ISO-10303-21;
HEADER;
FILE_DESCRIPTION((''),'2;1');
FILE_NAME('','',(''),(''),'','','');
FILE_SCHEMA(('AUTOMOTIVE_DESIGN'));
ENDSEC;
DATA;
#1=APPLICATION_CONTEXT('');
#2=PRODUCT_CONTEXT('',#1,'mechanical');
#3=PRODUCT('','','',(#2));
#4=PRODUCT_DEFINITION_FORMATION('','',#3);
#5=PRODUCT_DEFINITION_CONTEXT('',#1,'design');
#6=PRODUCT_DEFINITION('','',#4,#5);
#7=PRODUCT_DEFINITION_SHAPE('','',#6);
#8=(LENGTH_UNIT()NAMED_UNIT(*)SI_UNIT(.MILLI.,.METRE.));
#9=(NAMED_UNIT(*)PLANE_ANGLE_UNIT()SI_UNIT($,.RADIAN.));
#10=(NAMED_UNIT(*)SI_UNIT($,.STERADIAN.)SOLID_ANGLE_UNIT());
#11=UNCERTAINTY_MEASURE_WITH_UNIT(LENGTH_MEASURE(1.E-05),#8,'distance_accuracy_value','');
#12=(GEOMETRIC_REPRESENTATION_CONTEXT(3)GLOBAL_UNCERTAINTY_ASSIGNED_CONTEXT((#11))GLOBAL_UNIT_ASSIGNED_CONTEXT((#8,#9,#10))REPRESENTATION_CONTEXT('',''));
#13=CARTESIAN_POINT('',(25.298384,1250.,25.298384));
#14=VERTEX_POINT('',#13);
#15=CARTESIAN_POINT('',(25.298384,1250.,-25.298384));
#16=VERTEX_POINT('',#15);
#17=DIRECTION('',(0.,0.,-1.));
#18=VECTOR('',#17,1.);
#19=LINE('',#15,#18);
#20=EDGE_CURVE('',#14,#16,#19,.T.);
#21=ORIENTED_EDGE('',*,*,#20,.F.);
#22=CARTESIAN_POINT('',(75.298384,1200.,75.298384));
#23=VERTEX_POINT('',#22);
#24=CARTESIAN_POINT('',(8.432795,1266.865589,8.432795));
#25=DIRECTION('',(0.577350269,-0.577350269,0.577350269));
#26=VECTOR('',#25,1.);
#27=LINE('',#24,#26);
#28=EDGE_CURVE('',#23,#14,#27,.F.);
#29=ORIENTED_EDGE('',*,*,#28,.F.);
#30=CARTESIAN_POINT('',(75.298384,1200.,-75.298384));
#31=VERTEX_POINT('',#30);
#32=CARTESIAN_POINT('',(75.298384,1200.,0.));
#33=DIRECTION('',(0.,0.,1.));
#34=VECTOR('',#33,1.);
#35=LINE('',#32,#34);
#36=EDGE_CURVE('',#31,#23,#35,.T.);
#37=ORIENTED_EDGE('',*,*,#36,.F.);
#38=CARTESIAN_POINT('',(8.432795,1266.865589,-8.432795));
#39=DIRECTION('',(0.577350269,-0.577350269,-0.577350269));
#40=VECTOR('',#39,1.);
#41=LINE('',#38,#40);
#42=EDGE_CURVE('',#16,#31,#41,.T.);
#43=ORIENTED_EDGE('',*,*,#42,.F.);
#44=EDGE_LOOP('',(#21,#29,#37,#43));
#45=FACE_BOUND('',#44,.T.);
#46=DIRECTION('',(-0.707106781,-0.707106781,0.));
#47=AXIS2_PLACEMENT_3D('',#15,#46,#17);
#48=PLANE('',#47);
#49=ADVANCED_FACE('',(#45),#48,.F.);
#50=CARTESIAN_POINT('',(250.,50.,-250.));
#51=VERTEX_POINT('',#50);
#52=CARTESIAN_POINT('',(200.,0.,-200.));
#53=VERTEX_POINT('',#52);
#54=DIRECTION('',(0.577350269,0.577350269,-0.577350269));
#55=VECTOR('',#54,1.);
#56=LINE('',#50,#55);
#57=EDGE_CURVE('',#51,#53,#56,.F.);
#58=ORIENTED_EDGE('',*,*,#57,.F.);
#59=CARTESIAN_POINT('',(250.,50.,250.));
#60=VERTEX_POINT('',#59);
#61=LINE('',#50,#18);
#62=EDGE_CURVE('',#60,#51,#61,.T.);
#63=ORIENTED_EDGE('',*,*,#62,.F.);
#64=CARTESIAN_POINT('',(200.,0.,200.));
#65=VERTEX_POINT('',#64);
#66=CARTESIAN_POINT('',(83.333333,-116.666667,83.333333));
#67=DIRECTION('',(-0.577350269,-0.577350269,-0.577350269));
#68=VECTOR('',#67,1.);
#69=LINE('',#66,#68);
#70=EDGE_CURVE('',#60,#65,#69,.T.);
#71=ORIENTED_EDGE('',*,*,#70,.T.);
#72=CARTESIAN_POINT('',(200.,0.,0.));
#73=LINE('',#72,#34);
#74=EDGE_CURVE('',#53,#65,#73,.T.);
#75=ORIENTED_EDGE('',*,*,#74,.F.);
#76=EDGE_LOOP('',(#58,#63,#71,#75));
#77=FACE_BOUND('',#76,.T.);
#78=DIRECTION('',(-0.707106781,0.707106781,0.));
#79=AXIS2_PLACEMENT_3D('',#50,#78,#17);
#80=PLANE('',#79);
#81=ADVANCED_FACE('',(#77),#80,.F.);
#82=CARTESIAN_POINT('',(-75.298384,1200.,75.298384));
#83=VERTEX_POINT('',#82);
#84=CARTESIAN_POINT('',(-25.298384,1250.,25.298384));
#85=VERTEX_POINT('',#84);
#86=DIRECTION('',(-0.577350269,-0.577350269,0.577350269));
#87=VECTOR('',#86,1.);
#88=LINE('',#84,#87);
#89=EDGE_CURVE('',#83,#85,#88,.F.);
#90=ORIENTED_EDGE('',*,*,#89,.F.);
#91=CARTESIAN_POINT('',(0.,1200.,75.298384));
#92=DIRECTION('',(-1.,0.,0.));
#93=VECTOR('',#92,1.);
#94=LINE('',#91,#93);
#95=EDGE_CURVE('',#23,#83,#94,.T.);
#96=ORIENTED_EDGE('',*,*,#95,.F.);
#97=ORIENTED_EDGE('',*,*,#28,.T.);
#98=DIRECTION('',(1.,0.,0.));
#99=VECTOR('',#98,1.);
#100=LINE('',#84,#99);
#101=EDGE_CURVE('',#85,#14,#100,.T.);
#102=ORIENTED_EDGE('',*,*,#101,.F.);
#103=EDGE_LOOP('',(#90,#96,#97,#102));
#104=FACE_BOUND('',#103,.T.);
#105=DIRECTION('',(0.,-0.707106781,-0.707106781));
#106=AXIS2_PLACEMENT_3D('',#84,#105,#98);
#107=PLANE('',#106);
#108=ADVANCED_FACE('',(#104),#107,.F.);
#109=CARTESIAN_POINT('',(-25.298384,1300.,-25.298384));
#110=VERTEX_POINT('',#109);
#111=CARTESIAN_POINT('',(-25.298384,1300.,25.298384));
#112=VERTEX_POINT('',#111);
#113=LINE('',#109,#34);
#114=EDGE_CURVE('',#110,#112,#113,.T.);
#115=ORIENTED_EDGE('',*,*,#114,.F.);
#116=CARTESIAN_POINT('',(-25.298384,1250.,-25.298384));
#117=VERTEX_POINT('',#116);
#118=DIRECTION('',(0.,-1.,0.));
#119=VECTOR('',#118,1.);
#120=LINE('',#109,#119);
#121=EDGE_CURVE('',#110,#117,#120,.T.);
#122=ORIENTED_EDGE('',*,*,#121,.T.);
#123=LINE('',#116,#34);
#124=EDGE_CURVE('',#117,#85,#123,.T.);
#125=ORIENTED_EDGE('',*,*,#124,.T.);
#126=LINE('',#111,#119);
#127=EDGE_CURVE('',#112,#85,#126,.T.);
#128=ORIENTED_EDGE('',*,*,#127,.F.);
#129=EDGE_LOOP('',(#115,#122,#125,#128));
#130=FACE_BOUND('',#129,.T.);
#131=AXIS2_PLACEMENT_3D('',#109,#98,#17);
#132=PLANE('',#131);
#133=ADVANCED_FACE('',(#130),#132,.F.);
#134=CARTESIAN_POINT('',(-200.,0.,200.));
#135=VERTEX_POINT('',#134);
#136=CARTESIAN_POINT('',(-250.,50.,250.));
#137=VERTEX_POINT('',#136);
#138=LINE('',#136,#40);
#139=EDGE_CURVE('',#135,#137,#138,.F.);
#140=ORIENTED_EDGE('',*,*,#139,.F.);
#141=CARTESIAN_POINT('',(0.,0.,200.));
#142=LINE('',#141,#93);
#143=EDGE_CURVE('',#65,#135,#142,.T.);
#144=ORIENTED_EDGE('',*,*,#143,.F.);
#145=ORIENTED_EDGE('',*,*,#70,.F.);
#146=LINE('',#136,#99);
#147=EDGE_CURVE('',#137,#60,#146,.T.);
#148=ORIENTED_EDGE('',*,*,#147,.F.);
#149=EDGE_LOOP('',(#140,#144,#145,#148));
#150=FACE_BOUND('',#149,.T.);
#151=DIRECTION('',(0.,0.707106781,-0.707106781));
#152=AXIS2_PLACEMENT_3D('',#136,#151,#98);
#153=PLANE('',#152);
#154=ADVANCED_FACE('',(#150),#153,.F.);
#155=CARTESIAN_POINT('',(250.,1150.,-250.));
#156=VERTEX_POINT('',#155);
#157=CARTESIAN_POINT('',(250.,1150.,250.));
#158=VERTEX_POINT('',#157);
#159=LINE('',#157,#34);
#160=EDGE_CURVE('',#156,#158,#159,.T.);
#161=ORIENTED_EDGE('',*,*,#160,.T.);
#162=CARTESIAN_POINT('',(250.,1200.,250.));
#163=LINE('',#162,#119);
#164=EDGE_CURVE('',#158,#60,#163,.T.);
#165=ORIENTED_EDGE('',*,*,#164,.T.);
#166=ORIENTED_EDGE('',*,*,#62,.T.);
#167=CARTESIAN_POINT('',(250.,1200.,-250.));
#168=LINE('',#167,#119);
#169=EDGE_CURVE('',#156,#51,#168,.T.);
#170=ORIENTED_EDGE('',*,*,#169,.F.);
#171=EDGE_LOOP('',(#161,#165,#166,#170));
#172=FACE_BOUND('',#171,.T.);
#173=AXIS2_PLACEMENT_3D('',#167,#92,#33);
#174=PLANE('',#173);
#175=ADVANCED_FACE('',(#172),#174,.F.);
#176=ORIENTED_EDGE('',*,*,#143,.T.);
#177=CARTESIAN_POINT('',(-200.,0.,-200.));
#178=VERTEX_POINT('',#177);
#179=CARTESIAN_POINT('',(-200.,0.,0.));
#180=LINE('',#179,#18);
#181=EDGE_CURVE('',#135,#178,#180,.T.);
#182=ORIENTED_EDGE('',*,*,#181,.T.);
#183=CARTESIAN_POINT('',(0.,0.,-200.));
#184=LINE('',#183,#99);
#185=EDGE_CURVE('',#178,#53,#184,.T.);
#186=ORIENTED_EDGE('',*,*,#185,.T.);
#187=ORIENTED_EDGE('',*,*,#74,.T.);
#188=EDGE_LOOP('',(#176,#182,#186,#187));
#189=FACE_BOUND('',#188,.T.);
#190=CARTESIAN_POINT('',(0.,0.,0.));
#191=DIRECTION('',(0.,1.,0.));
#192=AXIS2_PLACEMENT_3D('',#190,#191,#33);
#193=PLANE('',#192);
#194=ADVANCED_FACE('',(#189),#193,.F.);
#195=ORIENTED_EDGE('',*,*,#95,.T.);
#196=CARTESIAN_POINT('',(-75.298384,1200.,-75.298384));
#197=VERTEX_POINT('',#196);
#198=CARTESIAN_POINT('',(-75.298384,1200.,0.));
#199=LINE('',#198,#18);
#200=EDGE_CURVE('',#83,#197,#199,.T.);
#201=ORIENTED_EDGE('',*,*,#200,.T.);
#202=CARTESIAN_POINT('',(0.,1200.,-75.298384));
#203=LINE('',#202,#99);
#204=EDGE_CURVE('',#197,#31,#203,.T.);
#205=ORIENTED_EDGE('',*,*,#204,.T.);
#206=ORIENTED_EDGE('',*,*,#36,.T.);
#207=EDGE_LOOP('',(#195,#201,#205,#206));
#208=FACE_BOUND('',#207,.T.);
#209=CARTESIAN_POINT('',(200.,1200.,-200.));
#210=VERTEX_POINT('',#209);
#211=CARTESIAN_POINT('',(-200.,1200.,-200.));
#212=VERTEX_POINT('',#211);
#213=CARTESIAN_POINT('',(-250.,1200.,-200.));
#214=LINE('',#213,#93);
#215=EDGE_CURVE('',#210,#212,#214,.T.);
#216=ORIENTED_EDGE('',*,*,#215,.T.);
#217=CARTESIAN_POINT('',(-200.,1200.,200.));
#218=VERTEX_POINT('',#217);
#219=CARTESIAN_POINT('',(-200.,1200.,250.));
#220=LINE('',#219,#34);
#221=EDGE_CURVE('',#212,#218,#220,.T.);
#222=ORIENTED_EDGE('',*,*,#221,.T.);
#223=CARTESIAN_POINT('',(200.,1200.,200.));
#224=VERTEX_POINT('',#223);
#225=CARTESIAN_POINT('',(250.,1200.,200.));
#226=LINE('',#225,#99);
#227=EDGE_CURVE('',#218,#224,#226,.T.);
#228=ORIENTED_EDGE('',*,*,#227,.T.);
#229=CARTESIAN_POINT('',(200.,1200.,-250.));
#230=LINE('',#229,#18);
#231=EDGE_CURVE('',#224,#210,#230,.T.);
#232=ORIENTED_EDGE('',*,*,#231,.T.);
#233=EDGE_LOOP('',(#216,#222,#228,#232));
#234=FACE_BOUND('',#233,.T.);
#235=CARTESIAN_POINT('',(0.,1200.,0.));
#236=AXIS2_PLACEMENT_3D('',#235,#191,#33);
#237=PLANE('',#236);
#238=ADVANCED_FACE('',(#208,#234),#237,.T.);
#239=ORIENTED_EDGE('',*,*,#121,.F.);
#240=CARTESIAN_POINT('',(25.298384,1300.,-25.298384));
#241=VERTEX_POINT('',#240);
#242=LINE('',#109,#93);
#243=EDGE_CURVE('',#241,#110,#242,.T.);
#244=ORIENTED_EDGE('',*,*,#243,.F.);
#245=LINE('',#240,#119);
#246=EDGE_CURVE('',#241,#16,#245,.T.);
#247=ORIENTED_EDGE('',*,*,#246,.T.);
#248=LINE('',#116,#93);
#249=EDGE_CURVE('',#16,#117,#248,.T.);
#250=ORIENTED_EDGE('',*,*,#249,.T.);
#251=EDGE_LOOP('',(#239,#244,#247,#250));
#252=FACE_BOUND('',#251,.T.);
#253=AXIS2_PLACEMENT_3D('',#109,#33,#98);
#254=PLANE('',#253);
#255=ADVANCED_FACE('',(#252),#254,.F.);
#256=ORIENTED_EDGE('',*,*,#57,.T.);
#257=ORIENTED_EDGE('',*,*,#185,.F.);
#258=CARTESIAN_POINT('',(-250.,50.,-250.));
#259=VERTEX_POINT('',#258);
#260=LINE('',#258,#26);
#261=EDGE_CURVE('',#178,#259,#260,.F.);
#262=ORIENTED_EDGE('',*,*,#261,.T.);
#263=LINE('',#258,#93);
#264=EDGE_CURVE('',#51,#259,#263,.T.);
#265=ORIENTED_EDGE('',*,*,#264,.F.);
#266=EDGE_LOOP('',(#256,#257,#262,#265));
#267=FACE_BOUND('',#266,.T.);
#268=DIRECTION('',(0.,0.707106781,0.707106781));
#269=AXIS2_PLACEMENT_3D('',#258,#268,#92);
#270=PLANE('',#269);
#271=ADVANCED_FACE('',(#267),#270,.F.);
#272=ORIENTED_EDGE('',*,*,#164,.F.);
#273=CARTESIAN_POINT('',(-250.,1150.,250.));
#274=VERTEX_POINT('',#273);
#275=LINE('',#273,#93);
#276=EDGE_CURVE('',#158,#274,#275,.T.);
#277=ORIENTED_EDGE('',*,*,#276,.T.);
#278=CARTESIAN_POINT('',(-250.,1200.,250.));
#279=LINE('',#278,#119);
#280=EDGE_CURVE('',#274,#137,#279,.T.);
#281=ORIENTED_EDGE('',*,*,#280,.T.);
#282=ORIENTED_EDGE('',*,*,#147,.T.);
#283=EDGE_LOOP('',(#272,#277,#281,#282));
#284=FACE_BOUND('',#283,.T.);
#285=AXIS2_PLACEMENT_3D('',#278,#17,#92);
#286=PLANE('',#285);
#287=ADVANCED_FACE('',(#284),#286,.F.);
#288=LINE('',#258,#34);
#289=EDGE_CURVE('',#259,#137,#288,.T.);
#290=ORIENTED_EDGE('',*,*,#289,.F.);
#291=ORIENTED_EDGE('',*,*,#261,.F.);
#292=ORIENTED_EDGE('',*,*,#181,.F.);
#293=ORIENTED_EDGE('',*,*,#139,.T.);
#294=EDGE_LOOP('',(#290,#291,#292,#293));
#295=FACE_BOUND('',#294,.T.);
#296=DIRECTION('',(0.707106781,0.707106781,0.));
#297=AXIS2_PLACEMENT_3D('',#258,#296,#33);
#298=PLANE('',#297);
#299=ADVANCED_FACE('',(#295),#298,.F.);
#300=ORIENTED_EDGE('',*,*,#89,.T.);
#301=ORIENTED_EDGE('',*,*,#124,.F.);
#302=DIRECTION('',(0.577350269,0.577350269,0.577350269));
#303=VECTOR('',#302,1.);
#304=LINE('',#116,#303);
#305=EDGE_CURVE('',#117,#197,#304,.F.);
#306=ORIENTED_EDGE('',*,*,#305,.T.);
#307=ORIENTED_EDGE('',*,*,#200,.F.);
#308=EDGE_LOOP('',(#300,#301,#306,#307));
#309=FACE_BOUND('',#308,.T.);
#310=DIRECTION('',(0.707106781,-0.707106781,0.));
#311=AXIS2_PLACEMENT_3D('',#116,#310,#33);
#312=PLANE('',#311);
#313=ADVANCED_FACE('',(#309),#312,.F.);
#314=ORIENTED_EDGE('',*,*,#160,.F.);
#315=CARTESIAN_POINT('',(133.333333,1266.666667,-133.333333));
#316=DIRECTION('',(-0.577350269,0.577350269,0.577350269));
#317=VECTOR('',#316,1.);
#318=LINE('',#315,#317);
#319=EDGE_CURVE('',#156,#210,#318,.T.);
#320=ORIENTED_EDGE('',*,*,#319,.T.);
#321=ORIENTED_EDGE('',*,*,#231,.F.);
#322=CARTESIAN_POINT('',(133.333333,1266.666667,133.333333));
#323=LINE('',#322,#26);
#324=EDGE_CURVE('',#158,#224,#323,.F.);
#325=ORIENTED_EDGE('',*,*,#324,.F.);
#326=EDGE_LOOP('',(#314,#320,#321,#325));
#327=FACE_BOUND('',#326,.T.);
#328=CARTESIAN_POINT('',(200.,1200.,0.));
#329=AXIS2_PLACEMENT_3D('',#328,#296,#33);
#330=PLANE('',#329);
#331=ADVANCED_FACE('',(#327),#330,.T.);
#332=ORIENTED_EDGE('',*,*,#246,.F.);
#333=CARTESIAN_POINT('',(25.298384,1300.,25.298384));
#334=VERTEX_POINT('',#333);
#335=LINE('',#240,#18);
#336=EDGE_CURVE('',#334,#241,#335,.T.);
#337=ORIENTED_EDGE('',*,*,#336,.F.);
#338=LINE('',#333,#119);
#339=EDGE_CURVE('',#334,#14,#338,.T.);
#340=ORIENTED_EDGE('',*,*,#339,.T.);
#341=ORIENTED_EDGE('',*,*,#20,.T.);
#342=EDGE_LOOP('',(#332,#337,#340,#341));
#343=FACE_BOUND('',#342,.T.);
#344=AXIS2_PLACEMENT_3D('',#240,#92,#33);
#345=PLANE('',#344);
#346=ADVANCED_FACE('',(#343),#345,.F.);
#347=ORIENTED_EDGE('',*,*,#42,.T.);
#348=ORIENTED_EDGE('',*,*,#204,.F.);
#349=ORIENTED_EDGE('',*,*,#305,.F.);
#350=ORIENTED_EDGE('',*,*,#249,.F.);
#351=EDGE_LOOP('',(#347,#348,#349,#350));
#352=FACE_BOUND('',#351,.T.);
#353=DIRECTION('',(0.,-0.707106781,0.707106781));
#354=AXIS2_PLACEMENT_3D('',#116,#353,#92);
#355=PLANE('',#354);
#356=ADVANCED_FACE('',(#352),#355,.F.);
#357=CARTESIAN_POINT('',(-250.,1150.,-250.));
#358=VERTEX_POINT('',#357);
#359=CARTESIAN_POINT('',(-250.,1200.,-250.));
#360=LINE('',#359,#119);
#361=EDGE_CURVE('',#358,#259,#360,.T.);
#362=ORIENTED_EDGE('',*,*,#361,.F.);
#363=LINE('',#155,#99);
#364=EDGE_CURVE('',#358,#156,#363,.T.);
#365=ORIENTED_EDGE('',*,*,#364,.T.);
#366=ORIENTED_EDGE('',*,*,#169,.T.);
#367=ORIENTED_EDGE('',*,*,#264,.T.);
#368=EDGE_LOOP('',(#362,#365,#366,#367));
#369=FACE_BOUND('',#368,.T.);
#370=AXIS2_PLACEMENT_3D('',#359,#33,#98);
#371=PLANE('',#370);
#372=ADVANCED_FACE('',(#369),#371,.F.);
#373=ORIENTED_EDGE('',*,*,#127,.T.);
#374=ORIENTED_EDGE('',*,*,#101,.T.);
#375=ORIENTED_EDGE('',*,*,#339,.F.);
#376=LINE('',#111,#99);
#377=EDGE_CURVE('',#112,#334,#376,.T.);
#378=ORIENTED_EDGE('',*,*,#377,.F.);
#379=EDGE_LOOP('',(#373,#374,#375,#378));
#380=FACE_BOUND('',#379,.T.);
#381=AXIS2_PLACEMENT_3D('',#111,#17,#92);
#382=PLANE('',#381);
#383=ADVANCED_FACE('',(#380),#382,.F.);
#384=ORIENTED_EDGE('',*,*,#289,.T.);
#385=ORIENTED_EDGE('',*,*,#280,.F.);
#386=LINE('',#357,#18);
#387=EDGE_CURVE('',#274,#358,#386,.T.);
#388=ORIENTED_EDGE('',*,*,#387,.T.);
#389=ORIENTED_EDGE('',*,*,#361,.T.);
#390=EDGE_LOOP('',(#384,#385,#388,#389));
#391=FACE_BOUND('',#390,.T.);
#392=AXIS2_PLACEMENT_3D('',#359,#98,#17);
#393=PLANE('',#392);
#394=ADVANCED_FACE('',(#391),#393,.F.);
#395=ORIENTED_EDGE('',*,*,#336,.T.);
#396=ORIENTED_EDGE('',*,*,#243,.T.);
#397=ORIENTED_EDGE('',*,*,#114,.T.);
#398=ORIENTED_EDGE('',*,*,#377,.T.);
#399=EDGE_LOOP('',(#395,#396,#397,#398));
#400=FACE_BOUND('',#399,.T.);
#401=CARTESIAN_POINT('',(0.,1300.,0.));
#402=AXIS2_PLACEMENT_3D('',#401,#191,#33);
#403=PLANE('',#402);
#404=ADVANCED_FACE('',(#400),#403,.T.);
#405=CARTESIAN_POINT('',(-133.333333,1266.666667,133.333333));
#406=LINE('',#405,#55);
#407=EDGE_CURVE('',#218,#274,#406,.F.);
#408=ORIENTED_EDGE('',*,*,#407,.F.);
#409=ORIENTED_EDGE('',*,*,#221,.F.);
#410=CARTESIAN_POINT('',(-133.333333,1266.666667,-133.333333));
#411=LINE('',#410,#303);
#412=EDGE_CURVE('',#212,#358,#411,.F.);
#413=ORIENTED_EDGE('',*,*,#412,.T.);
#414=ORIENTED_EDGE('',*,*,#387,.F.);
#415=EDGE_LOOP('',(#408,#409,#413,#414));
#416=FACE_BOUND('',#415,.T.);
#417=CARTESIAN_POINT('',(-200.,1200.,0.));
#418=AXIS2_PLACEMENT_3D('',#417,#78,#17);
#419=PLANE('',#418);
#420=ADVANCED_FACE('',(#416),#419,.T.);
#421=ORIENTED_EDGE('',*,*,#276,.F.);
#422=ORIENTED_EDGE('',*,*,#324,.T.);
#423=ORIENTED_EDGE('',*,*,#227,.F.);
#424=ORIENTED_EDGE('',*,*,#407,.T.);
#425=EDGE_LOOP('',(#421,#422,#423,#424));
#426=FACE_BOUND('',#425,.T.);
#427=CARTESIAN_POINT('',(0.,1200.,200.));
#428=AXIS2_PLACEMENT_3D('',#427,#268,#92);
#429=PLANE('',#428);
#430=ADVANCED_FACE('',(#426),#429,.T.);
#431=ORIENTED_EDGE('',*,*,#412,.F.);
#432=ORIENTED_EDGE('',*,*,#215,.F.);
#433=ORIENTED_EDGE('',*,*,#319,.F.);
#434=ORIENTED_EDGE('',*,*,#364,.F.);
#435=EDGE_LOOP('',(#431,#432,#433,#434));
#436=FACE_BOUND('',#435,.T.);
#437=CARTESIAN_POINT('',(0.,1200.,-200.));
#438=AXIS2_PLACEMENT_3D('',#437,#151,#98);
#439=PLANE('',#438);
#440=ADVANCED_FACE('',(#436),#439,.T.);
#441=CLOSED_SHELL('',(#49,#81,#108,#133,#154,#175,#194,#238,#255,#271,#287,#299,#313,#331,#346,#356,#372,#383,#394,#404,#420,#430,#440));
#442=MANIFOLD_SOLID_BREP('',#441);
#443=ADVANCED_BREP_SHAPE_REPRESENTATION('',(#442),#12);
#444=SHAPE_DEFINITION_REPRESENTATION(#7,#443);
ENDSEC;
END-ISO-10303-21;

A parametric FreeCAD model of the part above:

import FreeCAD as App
import Part
import Sketcher
Q = App.Units.Quantity


def edges_at(feature, points):
    """Names of the edges that pass closest to the given points."""
    edges = feature.Shape.Edges
    near = lambda p: min(range(len(edges)), key=lambda i: edges[i].distToShape(Part.Vertex(*p))[0])
    return sorted({f"Edge{near(p) + 1}" for p in points})

doc = App.newDocument("Part")
params = doc.addObject("Spreadsheet::Sheet", "Params")
for row, (alias, value) in enumerate([
    ("sketch1_width", "500 mm"),
    ("pad1_length", "1200 mm"),
    ("pad2_length", "100 mm"),
    ("chamfer_size", "50 mm"),
], start=1):
    params.set(f"A{row}", alias)
    params.set(f"B{row}", "=" + value)
    params.setAlias(f"B{row}", alias)

body = doc.addObject("PartDesign::Body", "Body")

sketch1 = body.newObject("Sketcher::SketchObject", "Sketch")
sketch1.AttachmentSupport = (doc.getObject("XZ_Plane"), [""])
sketch1.MapMode = "FlatFace"
sketch1.addGeometry([
    Part.LineSegment(App.Vector(-250, -250, 0), App.Vector(-250, 250, 0)),
    Part.LineSegment(App.Vector(-250, 250, 0), App.Vector(250, 250, 0)),
    Part.LineSegment(App.Vector(250, 250, 0), App.Vector(250, -250, 0)),
    Part.LineSegment(App.Vector(250, -250, 0), App.Vector(-250, -250, 0)),
], False)
sketch1.addConstraint([
    Sketcher.Constraint("Coincident", 0, 2, 1, 1),
    Sketcher.Constraint("Coincident", 1, 2, 2, 1),
    Sketcher.Constraint("Coincident", 2, 2, 3, 1),
    Sketcher.Constraint("Coincident", 3, 2, 0, 1),
    Sketcher.Constraint("Vertical", 0),
    Sketcher.Constraint("Horizontal", 1),
    Sketcher.Constraint("Vertical", 2),
    Sketcher.Constraint("Horizontal", 3),
    Sketcher.Constraint("Symmetric", 0, 2, 2, 2, -1, 1),
    Sketcher.Constraint("Equal", 3, 0),
    Sketcher.Constraint("DistanceX", 1, 1, 1, 2, Q("500 mm")),
])
sketch1.setExpression("Constraints[10]", "Params.sketch1_width")
pad1 = body.newObject("PartDesign::Pad", "Pad")
pad1.Profile = sketch1
pad1.setExpression("Length", "Params.pad1_length")
pad1.Reversed = True

sketch2 = body.newObject("Sketcher::SketchObject", "Sketch001")
sketch2.AttachmentSupport = (doc.getObject("XZ_Plane"), [""])
sketch2.MapMode = "FlatFace"
sketch2.AttachmentOffset = App.Placement(App.Vector(0, 0, -1200), App.Rotation())
sketch2.addGeometry([
    Part.LineSegment(App.Vector(-25.298384, -25.298384, 0), App.Vector(-25.298384, 25.298384, 0)),
    Part.LineSegment(App.Vector(-25.298384, 25.298384, 0), App.Vector(25.298384, 25.298384, 0)),
    Part.LineSegment(App.Vector(25.298384, 25.298384, 0), App.Vector(25.298384, -25.298384, 0)),
    Part.LineSegment(App.Vector(25.298384, -25.298384, 0), App.Vector(-25.298384, -25.298384, 0)),
], False)
sketch2.addConstraint([
    Sketcher.Constraint("Coincident", 0, 2, 1, 1),
    Sketcher.Constraint("Coincident", 1, 2, 2, 1),
    Sketcher.Constraint("Coincident", 2, 2, 3, 1),
    Sketcher.Constraint("Coincident", 3, 2, 0, 1),
    Sketcher.Constraint("Vertical", 0),
    Sketcher.Constraint("Horizontal", 1),
    Sketcher.Constraint("Vertical", 2),
    Sketcher.Constraint("Horizontal", 3),
    Sketcher.Constraint("Symmetric", 0, 2, 2, 2, -1, 1),
    Sketcher.Constraint("Equal", 3, 0),
    Sketcher.Constraint("DistanceX", 1, 1, 1, 2, Q("50.596768 mm")),
])
pad2 = body.newObject("PartDesign::Pad", "Pad001")
pad2.Profile = sketch2
pad2.setExpression("Length", "Params.pad2_length")
pad2.Reversed = True
doc.recompute()

chamfer = body.newObject("PartDesign::Chamfer", "Chamfer")
chamfer.Base = (pad2, edges_at(pad2, [
    (-250, 1200, 0),
    (25.298, 1200, 0),
    (0, 1200, -25.298),
    (-25.298, 1200, 0),
    (0, 1200, 250),
    (0, 1200, 25.298),
    (250, 1200, 0),
    (0, 0, 250),
    (-250, 0, 0),
    (0, 0, -250),
    (250, 0, 0),
    (0, 1200, -250),
]))
chamfer.setExpression("Size", "Params.chamfer_size")

doc.recompute()
